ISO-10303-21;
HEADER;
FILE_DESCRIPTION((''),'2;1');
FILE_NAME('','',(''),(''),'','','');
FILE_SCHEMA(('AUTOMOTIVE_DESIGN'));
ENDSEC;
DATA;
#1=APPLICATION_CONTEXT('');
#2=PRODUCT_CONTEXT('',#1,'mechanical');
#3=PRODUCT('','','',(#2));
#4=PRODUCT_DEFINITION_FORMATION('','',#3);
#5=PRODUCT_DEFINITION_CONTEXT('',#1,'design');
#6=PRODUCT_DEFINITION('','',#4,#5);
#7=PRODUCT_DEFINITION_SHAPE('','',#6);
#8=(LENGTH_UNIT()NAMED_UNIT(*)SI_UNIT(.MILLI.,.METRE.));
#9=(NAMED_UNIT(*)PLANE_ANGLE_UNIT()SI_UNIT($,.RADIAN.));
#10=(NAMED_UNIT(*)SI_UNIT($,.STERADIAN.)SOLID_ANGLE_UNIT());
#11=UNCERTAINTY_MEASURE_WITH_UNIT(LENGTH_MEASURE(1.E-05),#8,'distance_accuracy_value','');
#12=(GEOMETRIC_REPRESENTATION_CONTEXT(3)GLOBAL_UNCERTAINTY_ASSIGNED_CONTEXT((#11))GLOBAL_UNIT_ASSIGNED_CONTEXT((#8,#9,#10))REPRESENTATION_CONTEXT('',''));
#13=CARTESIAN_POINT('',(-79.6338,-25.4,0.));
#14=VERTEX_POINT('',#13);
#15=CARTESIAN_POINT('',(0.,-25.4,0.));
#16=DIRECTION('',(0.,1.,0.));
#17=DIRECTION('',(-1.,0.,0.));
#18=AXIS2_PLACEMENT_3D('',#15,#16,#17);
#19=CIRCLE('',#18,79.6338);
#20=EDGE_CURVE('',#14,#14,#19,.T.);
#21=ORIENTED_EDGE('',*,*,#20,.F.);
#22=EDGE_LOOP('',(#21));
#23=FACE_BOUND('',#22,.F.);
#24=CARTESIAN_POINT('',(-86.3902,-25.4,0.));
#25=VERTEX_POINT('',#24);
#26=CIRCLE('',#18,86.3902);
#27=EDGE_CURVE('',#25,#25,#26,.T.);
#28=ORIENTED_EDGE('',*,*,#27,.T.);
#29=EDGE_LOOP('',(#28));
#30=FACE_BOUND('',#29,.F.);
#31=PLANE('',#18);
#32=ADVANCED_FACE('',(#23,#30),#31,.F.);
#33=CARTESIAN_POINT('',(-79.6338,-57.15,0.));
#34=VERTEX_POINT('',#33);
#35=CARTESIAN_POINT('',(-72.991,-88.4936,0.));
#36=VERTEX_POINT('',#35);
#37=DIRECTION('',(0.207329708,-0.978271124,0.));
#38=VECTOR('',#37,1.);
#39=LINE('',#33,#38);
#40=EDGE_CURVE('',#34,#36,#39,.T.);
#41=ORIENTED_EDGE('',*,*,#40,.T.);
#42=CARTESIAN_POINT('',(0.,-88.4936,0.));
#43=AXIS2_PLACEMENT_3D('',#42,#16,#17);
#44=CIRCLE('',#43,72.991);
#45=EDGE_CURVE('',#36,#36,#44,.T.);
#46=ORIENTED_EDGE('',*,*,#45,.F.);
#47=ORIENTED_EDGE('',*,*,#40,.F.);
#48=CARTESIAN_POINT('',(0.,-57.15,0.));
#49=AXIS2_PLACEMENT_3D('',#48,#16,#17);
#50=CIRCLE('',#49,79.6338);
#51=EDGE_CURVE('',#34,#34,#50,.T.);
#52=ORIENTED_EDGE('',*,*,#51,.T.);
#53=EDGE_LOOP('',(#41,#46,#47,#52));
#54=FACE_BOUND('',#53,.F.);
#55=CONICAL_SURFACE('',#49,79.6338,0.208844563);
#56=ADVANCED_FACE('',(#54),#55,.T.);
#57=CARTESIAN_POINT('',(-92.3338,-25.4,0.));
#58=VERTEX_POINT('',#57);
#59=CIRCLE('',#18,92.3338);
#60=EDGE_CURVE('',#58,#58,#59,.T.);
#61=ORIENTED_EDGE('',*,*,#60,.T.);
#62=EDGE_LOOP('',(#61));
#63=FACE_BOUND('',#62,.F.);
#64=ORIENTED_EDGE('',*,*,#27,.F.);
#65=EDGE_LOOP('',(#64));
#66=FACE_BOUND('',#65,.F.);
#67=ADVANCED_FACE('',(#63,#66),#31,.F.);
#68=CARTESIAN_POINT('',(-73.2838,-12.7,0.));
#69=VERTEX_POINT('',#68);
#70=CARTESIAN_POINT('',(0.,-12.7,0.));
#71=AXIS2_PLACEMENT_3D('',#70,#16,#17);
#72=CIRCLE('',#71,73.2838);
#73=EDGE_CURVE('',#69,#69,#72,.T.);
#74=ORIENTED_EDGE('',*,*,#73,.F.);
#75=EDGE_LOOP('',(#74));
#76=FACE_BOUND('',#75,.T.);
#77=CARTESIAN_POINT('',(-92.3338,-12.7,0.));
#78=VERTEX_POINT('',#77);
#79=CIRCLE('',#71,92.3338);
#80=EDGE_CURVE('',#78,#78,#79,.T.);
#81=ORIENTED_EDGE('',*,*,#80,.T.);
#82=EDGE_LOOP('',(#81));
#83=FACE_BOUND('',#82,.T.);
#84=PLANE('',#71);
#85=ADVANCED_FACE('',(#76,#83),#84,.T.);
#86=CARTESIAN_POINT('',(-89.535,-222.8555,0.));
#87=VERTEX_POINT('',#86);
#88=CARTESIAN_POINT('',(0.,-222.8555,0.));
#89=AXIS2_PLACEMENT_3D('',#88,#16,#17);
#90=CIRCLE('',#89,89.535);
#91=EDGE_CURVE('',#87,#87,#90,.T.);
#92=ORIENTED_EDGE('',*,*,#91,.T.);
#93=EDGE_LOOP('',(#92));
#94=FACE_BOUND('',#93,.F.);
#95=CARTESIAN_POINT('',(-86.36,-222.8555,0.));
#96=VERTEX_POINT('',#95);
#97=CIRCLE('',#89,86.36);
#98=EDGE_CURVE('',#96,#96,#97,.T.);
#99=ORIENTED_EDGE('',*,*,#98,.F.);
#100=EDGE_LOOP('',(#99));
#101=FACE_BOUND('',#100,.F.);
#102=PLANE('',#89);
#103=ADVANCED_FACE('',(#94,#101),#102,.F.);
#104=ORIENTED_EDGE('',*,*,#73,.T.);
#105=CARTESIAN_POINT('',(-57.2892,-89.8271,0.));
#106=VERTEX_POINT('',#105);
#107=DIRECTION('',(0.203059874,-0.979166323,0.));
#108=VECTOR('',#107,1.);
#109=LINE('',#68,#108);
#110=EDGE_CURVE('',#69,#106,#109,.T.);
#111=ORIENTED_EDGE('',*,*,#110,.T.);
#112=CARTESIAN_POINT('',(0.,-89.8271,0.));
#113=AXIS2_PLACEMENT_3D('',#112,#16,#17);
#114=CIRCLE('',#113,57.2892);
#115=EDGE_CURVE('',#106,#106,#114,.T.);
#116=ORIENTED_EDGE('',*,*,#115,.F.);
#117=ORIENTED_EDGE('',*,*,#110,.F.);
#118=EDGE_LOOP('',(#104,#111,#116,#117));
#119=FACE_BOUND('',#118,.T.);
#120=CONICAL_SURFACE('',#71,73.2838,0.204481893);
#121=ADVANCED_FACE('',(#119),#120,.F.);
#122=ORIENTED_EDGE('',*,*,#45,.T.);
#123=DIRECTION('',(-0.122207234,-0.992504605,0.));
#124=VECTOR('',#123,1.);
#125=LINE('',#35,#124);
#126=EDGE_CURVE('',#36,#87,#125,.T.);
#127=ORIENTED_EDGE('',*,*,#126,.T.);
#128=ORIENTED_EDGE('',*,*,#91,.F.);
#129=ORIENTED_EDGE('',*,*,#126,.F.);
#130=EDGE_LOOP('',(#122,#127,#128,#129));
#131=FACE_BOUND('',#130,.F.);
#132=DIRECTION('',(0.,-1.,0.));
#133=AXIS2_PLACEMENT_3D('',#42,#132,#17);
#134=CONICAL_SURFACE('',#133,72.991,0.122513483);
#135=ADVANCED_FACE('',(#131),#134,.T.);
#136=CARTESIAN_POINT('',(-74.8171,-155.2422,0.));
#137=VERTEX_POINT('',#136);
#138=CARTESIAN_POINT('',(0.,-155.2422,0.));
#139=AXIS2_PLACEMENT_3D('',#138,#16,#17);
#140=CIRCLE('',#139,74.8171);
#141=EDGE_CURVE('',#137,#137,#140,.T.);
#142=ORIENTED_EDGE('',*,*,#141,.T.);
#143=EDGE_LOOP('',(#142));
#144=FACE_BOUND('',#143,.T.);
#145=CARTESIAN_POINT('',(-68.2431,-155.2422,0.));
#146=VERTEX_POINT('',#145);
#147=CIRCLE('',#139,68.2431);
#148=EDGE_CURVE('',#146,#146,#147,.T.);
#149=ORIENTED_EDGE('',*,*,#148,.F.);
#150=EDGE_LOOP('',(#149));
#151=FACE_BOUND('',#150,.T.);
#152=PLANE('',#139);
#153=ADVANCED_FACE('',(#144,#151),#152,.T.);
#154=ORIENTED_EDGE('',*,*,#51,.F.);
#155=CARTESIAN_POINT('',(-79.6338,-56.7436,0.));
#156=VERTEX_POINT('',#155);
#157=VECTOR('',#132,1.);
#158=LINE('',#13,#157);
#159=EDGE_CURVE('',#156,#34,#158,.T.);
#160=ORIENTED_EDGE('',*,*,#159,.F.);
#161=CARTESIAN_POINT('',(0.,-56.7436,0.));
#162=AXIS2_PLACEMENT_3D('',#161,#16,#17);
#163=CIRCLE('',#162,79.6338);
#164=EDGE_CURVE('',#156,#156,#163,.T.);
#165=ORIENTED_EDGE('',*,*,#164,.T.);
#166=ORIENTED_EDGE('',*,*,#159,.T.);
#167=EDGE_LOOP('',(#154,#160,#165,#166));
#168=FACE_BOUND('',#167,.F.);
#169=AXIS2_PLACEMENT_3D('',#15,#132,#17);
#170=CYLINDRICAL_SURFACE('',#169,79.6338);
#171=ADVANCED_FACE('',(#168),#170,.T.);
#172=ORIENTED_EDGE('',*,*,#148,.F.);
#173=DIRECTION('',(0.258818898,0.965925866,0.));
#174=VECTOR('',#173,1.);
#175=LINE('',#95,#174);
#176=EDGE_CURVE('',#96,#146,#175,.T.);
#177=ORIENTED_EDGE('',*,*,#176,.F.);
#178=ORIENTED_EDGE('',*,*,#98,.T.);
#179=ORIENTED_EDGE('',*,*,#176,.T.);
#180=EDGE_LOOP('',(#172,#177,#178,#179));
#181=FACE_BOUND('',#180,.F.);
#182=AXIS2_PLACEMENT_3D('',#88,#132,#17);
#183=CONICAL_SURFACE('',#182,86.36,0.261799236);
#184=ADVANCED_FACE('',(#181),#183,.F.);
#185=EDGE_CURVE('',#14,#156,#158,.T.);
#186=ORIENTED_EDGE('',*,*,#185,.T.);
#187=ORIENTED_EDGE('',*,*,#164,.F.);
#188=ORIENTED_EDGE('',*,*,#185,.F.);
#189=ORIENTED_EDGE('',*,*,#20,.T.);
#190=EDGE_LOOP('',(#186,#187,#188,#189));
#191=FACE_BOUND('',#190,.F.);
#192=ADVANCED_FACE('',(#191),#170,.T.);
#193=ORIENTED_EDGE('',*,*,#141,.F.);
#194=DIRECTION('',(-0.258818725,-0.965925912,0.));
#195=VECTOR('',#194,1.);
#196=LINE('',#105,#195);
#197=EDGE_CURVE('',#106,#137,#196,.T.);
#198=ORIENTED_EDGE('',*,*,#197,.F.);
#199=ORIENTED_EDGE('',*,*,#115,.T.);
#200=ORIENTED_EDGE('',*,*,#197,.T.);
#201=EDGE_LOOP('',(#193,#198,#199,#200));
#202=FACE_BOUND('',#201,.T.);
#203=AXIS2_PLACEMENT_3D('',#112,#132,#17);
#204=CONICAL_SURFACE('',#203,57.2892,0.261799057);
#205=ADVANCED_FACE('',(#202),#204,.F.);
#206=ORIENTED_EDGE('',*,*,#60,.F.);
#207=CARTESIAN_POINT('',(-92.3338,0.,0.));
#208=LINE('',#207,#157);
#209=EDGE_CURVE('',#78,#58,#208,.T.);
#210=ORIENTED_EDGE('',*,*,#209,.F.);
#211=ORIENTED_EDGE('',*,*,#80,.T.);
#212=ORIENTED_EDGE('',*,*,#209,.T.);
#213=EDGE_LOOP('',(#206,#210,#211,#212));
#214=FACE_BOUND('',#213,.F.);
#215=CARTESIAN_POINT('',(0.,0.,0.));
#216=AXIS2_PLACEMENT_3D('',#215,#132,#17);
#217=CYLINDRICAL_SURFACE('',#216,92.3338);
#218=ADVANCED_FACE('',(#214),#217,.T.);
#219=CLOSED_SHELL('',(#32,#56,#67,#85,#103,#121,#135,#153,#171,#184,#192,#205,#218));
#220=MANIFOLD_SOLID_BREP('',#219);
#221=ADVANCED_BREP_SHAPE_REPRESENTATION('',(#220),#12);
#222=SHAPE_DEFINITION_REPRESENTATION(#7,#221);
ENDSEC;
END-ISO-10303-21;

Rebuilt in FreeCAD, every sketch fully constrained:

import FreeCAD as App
import Part
import Sketcher
Q = App.Units.Quantity


def add_polygon(sketch, points):
    """Adds a closed chain of lines whose ends are joined by coincident constraints."""
    first, n = sketch.GeometryCount, len(points)
    for a, b in zip(points, points[1:] + points[:1]):
        sketch.addGeometry(Part.LineSegment(App.Vector(*a, 0), App.Vector(*b, 0)), False)
    for i in range(n):
        sketch.addConstraint(Sketcher.Constraint("Coincident", first + i, 2, first + (i + 1) % n, 1))

doc = App.newDocument("Part")
body = doc.addObject("PartDesign::Body", "Body")

sketch1 = body.newObject("Sketcher::SketchObject", "Sketch")
sketch1.AttachmentSupport = (doc.getObject("XY_Plane"), [""])
sketch1.MapMode = "FlatFace"
add_polygon(sketch1, [(-73.2838, -12.7), (-92.3338, -12.7), (-92.3338, -25.4), (-79.6338, -25.4), (-79.6338, -57.15), (-72.991, -88.4936), (-89.535, -222.8555), (-86.36, -222.8555), (-68.2431, -155.2422), (-74.8171, -155.2422), (-57.289155, -89.827091)])
sketch1.addConstraint(Sketcher.Constraint("Horizontal", 0))
sketch1.addConstraint(Sketcher.Constraint("Vertical", 1))
sketch1.addConstraint(Sketcher.Constraint("Horizontal", 2))
sketch1.addConstraint(Sketcher.Constraint("Vertical", 3))
sketch1.addConstraint(Sketcher.Constraint("Horizontal", 6))
sketch1.addConstraint(Sketcher.Constraint("Horizontal", 8))
sketch1.addConstraint(Sketcher.Constraint("DistanceX", 2, 1, 2, 2, Q("0.5 in")))
sketch1.addConstraint(Sketcher.Constraint("DistanceY", 1, 2, 1, 1, Q("0.5 in")))
sketch1.addConstraint(Sketcher.Constraint("DistanceY", 1, 2, -1, 1, Q("1 in")))
sketch1.addConstraint(Sketcher.Constraint("DistanceX", 0, 2, 0, 1, Q("0.75 in")))
sketch1.addConstraint(Sketcher.Constraint("DistanceY", 3, 2, 3, 1, Q("1.25 in")))
sketch1.addConstraint(Sketcher.Constraint("DistanceX", 6, 2, -1, 1, Q("3.4 in")))
sketch1.addConstraint(Sketcher.Constraint("DistanceX", 6, 1, 6, 2, Q("0.125 in")))
sketch1.addConstraint(Sketcher.Constraint("DistanceY", 4, 2, -1, 1, Q("3.484 in")))
sketch1.addConstraint(Sketcher.Constraint("Distance", 4, Q("1.2614 in")))
sketch1.addConstraint(Sketcher.Constraint("Distance", 10, Q("3.1011 in")))
sketch1.addConstraint(Sketcher.Constraint("DistanceX", 8, 2, 8, 1, 6.574))
sketch1.addConstraint(Sketcher.Constraint("DistanceX", 0, 2, -1, 1, Q("3.6352 in")))
sketch1.addConstraint(Sketcher.Constraint("DistanceY", 7, 2, -1, 1, Q("6.1119 in")))
sketch1.addConstraint(Sketcher.Constraint("DistanceY", 9, 2, -1, 1, Q("3.5365 in")))
sketch1.addConstraint(Sketcher.Constraint("DistanceX", 8, 2, 4, 2, Q("0.0719 in")))
sketch1.addConstraint(Sketcher.Constraint("Distance", 5, 135.3766))
revolution = body.newObject("PartDesign::Revolution", "Revolution")
revolution.Profile = sketch1
revolution.ReferenceAxis = (sketch1, ["V_Axis"])
revolution.Angle = 360

doc.recompute()
